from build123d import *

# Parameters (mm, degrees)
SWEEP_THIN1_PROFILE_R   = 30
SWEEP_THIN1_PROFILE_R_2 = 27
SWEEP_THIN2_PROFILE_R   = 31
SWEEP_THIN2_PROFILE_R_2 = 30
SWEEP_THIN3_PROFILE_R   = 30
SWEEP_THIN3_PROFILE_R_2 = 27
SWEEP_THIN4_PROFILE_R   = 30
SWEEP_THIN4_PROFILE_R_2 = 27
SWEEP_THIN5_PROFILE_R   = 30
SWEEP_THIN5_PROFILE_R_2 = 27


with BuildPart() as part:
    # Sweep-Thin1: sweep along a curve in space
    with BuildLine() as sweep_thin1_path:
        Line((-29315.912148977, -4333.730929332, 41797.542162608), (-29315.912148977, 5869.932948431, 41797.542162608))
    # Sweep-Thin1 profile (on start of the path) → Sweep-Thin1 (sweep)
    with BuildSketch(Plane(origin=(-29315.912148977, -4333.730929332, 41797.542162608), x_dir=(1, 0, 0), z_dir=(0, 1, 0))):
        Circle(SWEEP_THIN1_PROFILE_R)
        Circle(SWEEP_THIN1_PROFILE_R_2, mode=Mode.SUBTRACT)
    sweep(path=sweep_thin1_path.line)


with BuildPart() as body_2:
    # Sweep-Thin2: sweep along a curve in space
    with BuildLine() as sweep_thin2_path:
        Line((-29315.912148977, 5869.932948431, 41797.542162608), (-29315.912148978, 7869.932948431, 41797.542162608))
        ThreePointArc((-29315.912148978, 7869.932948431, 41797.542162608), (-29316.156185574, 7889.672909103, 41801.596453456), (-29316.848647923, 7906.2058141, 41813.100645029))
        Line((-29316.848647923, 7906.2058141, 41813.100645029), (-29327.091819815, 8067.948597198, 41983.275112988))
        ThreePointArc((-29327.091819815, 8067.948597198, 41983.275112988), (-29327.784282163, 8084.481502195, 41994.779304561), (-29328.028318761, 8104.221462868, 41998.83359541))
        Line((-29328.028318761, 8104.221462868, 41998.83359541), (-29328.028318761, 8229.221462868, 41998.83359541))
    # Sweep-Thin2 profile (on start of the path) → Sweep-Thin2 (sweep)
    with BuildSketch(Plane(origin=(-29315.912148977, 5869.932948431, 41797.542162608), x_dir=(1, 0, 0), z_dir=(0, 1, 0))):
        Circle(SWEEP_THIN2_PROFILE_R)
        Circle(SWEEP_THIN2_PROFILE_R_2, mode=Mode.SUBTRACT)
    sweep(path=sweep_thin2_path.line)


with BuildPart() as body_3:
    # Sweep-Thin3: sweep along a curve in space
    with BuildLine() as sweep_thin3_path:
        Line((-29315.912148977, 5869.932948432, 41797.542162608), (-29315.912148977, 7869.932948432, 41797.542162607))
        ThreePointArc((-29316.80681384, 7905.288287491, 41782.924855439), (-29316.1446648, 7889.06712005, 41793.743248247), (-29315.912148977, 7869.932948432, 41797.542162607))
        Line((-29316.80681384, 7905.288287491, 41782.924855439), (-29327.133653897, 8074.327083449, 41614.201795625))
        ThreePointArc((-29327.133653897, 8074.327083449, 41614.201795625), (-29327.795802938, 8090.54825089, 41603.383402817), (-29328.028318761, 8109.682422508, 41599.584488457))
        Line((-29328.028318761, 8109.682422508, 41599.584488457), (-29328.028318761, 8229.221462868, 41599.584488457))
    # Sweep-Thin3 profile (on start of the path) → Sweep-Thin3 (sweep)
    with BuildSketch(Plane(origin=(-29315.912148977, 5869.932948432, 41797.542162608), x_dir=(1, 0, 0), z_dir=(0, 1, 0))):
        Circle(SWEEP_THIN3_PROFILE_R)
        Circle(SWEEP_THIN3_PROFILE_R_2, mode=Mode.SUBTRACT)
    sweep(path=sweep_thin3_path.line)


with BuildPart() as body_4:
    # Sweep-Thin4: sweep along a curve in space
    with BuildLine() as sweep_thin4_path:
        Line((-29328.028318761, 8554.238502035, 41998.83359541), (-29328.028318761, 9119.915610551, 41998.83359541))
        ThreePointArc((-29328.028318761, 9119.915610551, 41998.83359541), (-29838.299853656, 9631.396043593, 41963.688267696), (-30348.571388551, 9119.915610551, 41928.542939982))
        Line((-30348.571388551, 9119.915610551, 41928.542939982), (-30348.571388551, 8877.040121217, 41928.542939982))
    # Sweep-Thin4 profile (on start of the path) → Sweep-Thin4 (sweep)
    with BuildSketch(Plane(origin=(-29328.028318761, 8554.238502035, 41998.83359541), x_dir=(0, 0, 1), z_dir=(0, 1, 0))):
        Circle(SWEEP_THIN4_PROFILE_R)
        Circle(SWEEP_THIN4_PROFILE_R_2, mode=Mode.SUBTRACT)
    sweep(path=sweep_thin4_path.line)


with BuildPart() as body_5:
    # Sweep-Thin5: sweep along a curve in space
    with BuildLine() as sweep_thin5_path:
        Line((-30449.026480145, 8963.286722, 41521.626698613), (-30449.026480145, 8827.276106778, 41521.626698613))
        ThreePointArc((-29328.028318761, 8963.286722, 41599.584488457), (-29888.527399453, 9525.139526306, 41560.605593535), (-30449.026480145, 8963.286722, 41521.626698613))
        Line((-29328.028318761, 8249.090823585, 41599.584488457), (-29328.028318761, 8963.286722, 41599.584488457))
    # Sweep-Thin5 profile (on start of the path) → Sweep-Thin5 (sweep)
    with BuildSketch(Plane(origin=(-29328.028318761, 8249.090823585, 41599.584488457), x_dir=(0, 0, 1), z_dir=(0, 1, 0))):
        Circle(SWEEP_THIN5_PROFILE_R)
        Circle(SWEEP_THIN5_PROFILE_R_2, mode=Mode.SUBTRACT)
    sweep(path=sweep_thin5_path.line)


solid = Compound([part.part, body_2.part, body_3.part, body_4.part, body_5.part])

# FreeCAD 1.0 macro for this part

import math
import FreeCAD as App
import Part
import Sketcher

V = App.Vector
Q = App.Units.Quantity

doc = App.newDocument("Part")
body = doc.addObject("PartDesign::Body", "Body")

# Sketch on XZ plane
sketch1 = doc.addObject("Sketcher::SketchObject", "Sketch")
body.addObject(sketch1)
sketch1.AttachmentSupport = (doc.XZ_Plane, [""])
sketch1.MapMode = "FlatFace"
sketch1.AttachmentOffset = App.Placement(V(0, 0, 4333.730929), App.Rotation())
sketch1.addGeometry([
    Part.Circle(V(-29316, 41798, 0), V(0, 0, 1), 30),
    Part.Circle(V(-29316, 41798, 0), V(0, 0, 1), 27),
], False)
sketch1.addConstraint([
    Sketcher.Constraint("Coincident", 1, 3, 0, 3),
    Sketcher.Constraint("Diameter", 0, Q("60 mm")),
    Sketcher.Constraint("Diameter", 1, Q("54 mm")),
    Sketcher.Constraint("DistanceX", 0, 3, -1, 1, Q("29315.912149 mm")),
    Sketcher.Constraint("DistanceY", -1, 1, 0, 3, Q("41797.542163 mm")),
])

# Sketch on XY plane
sketch2 = doc.addObject("Sketcher::SketchObject", "Sketch001")
body.addObject(sketch2)
sketch2.AttachmentSupport = (doc.XY_Plane, [""])
sketch2.MapMode = "FlatFace"
sketch2.AttachmentOffset = App.Placement(V(0, 0, 41797.542163), App.Rotation())
sketch2.addGeometry(Part.LineSegment(V(-29316, -4334, 0), V(-29316, 5870, 0)), False)
sketch2.addConstraint([
    Sketcher.Constraint("Vertical", 0),
    Sketcher.Constraint("DistanceY", 0, 1, 0, 2, Q("10203.663878 mm")),
    Sketcher.Constraint("DistanceX", 0, 1, -1, 1, Q("29315.912149 mm")),
    Sketcher.Constraint("DistanceY", 0, 1, -1, 1, Q("4333.730929 mm")),
])
doc.recompute()

additivepipe = doc.addObject("PartDesign::AdditivePipe", "AdditivePipe")
body.addObject(additivepipe)
additivepipe.Profile = sketch1
additivepipe.Spine = (sketch2, ["Edge1"])
body2 = doc.addObject("PartDesign::Body", "Body001")

# Sketch on XZ plane
sketch3 = doc.addObject("Sketcher::SketchObject", "Sketch002")
body2.addObject(sketch3)
sketch3.AttachmentSupport = (doc.getObject("XZ_Plane001"), [""])
sketch3.MapMode = "FlatFace"
sketch3.AttachmentOffset = App.Placement(V(0, 0, -5869.932948), App.Rotation())
sketch3.addGeometry([
    Part.Circle(V(-29316, 41798, 0), V(0, 0, 1), 31),
    Part.Circle(V(-29316, 41798, 0), V(0, 0, 1), 30),
], False)
sketch3.addConstraint([
    Sketcher.Constraint("Coincident", 1, 3, 0, 3),
    Sketcher.Constraint("Diameter", 0, Q("62 mm")),
    Sketcher.Constraint("Diameter", 1, Q("60 mm")),
    Sketcher.Constraint("DistanceX", 0, 3, -1, 1, Q("29315.912149 mm")),
    Sketcher.Constraint("DistanceY", -1, 1, 0, 3, Q("41797.542163 mm")),
])

# Sketch on an angled plane
sketch4 = doc.addObject("Sketcher::SketchObject", "Sketch003")
body2.addObject(sketch4)
sketch4.Placement = App.Placement(V(-26703.278442, 0, -1607.328493), App.Rotation(V(0.060083432, 0, -0.998193359), V(0, 1.000000001, 0), V(0.998193359, 0, 0.060083432), "ZXY"))
sketch4.addGeometry([
    Part.LineSegment(V(-43483, 5870, 0), V(-43483, 7870, 0)),  # 0
    Part.ArcOfCircle(Part.Circle(V(-43533, 7870, 0), V(0, 0, 1), 50), math.radians(0), math.radians(47)),  # 1
    Part.LineSegment(V(-43499, 7906, 0), V(-43669, 8068, 0)),  # 2
    Part.ArcOfCircle(Part.Circle(V(-43635, 8104, 0), V(0, 0, 1), 50), math.radians(-180), math.radians(-133)),  # 3
    Part.LineSegment(V(-43685, 8104, 0), V(-43685, 8229, 0)),  # 4
], False)
sketch4.addConstraint([
    Sketcher.Constraint("Tangent", 0, 2, 1, 1),
    Sketcher.Constraint("Tangent", 1, 2, 2, 1),
    Sketcher.Constraint("Tangent", 2, 2, 3, 2),
    Sketcher.Constraint("Tangent", 3, 1, 4, 1),
    Sketcher.Constraint("Vertical", 0),
    Sketcher.Constraint("Vertical", 4),
    Sketcher.Constraint("Equal", 1, 3),
    Sketcher.Constraint("Radius", 1, Q("50 mm")),
    Sketcher.Constraint("DistanceY", 4, 1, 4, 2, Q("125 mm")),
    Sketcher.Constraint("Distance", 2, Q("235 mm")),
    Sketcher.Constraint("DistanceY", 0, 1, 0, 2, Q("2000.000003 mm")),
    Sketcher.Constraint("DistanceY", -1, 1, 1, 3, Q("7869.93296 mm")),
    Sketcher.Constraint("DistanceY", -1, 1, 2, 2, Q("8067.948609 mm")),
    Sketcher.Constraint("DistanceX", 1, 3, -1, 1, Q("43533.429653 mm")),
])
doc.recompute()

additivepipe2 = doc.addObject("PartDesign::AdditivePipe", "AdditivePipe001")
body2.addObject(additivepipe2)
additivepipe2.Profile = sketch3
additivepipe2.Spine = (sketch4, ["Edge1", "Edge2", "Edge3", "Edge4", "Edge5"])
body3 = doc.addObject("PartDesign::Body", "Body002")

# Sketch on XZ plane
sketch5 = doc.addObject("Sketcher::SketchObject", "Sketch004")
body3.addObject(sketch5)
sketch5.AttachmentSupport = (doc.getObject("XZ_Plane002"), [""])
sketch5.MapMode = "FlatFace"
sketch5.AttachmentOffset = App.Placement(V(0, 0, -5869.932948), App.Rotation())
sketch5.addGeometry([
    Part.Circle(V(-29316, 41798, 0), V(0, 0, 1), 30),
    Part.Circle(V(-29316, 41798, 0), V(0, 0, 1), 27),
], False)
sketch5.addConstraint([
    Sketcher.Constraint("Coincident", 1, 3, 0, 3),
    Sketcher.Constraint("Diameter", 0, Q("60 mm")),
    Sketcher.Constraint("Diameter", 1, Q("54 mm")),
    Sketcher.Constraint("DistanceX", 0, 3, -1, 1, Q("29315.912149 mm")),
    Sketcher.Constraint("DistanceY", -1, 1, 0, 3, Q("41797.542163 mm")),
])

# Sketch on an angled plane
sketch6 = doc.addObject("Sketcher::SketchObject", "Sketch005")
body3.addObject(sketch6)
sketch6.Placement = App.Placement(V(-31755.206682, 0, 1943.604749), App.Rotation(V(0.061091538, 0, 0.998132168), V(0, 1.000000001, 0), V(-0.998132168, 0, 0.061091538), "ZXY"))
sketch6.addGeometry([
    Part.LineSegment(V(39929, 5870, 0), V(39929, 7870, 0)),  # 0
    Part.ArcOfCircle(Part.Circle(V(39879, 7870, 0), V(0, 0, 1), 50), math.radians(0), math.radians(45)),  # 1
    Part.LineSegment(V(39914, 7905, 0), V(39745, 8074, 0)),  # 2
    Part.ArcOfCircle(Part.Circle(V(39780, 8110, 0), V(0, 0, 1), 50), math.radians(180), math.radians(225)),  # 3
    Part.LineSegment(V(39730, 8110, 0), V(39730, 8229, 0)),  # 4
], False)
sketch6.addConstraint([
    Sketcher.Constraint("Tangent", 0, 2, 1, 1),
    Sketcher.Constraint("Tangent", 1, 2, 2, 1),
    Sketcher.Constraint("Tangent", 2, 2, 3, 2),
    Sketcher.Constraint("Tangent", 3, 1, 4, 1),
    Sketcher.Constraint("Vertical", 0),
    Sketcher.Constraint("Vertical", 4),
    Sketcher.Constraint("Equal", 1, 3),
    Sketcher.Constraint("Radius", 1, Q("50 mm")),
    Sketcher.Constraint("Angle", 2, Q("135 deg")),
    Sketcher.Constraint("DistanceY", 4, 1, 4, 2, Q("119.539041 mm")),
    Sketcher.Constraint("DistanceY", -1, 1, 1, 2, Q("7905.2883 mm")),
    Sketcher.Constraint("Distance", 2, Q("239.056958 mm")),
    Sketcher.Constraint("DistanceY", 0, 1, 0, 2, Q("2000.000003 mm")),
    Sketcher.Constraint("DistanceX", -1, 1, 1, 3, Q("39878.517224 mm")),
])
doc.recompute()

additivepipe3 = doc.addObject("PartDesign::AdditivePipe", "AdditivePipe002")
body3.addObject(additivepipe3)
additivepipe3.Profile = sketch5
additivepipe3.Spine = (sketch6, ["Edge1", "Edge2", "Edge3", "Edge4", "Edge5"])
body4 = doc.addObject("PartDesign::Body", "Body003")

# Sketch on XZ plane
sketch7 = doc.addObject("Sketcher::SketchObject", "Sketch006")
body4.addObject(sketch7)
sketch7.AttachmentSupport = (doc.getObject("XZ_Plane003"), [""])
sketch7.MapMode = "FlatFace"
sketch7.AttachmentOffset = App.Placement(V(0, 0, -8554.238502), App.Rotation())
sketch7.addGeometry([
    Part.Circle(V(-29328, 41999, 0), V(0, 0, 1), 30),
    Part.Circle(V(-29328, 41999, 0), V(0, 0, 1), 27),
], False)
sketch7.addConstraint([
    Sketcher.Constraint("Coincident", 1, 3, 0, 3),
    Sketcher.Constraint("Diameter", 0, Q("60 mm")),
    Sketcher.Constraint("Diameter", 1, Q("54 mm")),
    Sketcher.Constraint("DistanceX", 0, 3, -1, 1, Q("29328.028319 mm")),
    Sketcher.Constraint("DistanceY", -1, 1, 0, 3, Q("41998.833595 mm")),
])

# Sketch on an angled plane
sketch8 = doc.addObject("Sketcher::SketchObject", "Sketch007")
body4.addObject(sketch8)
sketch8.Placement = App.Placement(V(-3017.514172, 0, 43810.989632), App.Rotation(V(0.997636472, 0, 0.068712947), V(0, 0.999999999, 0), V(-0.068712947, 0, 0.997636472), "ZXY"))
sketch8.addGeometry([
    Part.LineSegment(V(-26373, 8554, 0), V(-26373, 9120, 0)),
    Part.ArcOfCircle(Part.Circle(V(-26884, 9120, 0), V(0, 0, 1), 511), math.radians(0), math.radians(180)),
    Part.LineSegment(V(-27396, 9120, 0), V(-27396, 8877, 0)),
], False)
sketch8.addConstraint([
    Sketcher.Constraint("Tangent", 0, 2, 1, 1),
    Sketcher.Constraint("Tangent", 1, 2, 2, 1),
    Sketcher.Constraint("Vertical", 0),
    Sketcher.Constraint("Vertical", 2),
    Sketcher.Constraint("Radius", 1, Q("511.480433 mm")),
    Sketcher.Constraint("DistanceY", 2, 2, 2, 1, Q("242.875489 mm")),
    Sketcher.Constraint("DistanceY", -1, 1, 1, 3, Q("9119.915599 mm")),
    Sketcher.Constraint("DistanceY", 0, 1, 0, 2, Q("565.677108 mm")),
    Sketcher.Constraint("DistanceX", 1, 2, -1, 1, Q("27395.807949 mm")),
])
doc.recompute()

additivepipe4 = doc.addObject("PartDesign::AdditivePipe", "AdditivePipe003")
body4.addObject(additivepipe4)
additivepipe4.Profile = sketch7
additivepipe4.Spine = (sketch8, ["Edge1", "Edge2", "Edge3"])
body5 = doc.addObject("PartDesign::Body", "Body004")

# Sketch on XZ plane
sketch9 = doc.addObject("Sketcher::SketchObject", "Sketch008")
body5.addObject(sketch9)
sketch9.AttachmentSupport = (doc.getObject("XZ_Plane004"), [""])
sketch9.MapMode = "FlatFace"
sketch9.AttachmentOffset = App.Placement(V(0, 0, -8249.090824), App.Rotation())
sketch9.addGeometry([
    Part.Circle(V(-29328, 41600, 0), V(0, 0, 1), 30),
    Part.Circle(V(-29328, 41600, 0), V(0, 0, 1), 27),
], False)
sketch9.addConstraint([
    Sketcher.Constraint("Coincident", 1, 3, 0, 3),
    Sketcher.Constraint("Diameter", 0, Q("60 mm")),
    Sketcher.Constraint("Diameter", 1, Q("54 mm")),
    Sketcher.Constraint("DistanceX", 0, 3, -1, 1, Q("29328.028319 mm")),
    Sketcher.Constraint("DistanceY", -1, 1, 0, 3, Q("41599.584488 mm")),
])

# Sketch on an angled plane
sketch10 = doc.addObject("Sketcher::SketchObject", "Sketch009")
body5.addObject(sketch10)
sketch10.Placement = App.Placement(V(-3020.199254, 0, 43429.114884), App.Rotation(V(-0.997590608, 0, -0.069375635), V(0, 1, 0), V(0.069375635, 0, -0.997590608), "ZXY"))
sketch10.addGeometry([
    Part.LineSegment(V(26371, 8249, 0), V(26371, 8963, 0)),
    Part.ArcOfCircle(Part.Circle(V(26933, 8963, 0), V(0, 0, 1), 562), math.radians(0), math.radians(180)),
    Part.LineSegment(V(27495, 8963, 0), V(27495, 8827, 0)),
], False)
sketch10.addConstraint([
    Sketcher.Constraint("Tangent", 0, 2, 1, 2),
    Sketcher.Constraint("Tangent", 1, 1, 2, 1),
    Sketcher.Constraint("Vertical", 0),
    Sketcher.Constraint("Vertical", 2),
    Sketcher.Constraint("DistanceY", 0, 1, 0, 2, Q("714.195898 mm")),
    Sketcher.Constraint("Radius", 1, Q("561.852804 mm")),
    Sketcher.Constraint("DistanceY", 2, 2, 2, 1, Q("136.010615 mm")),
    Sketcher.Constraint("DistanceY", -1, 1, 1, 3, Q("8963.28672 mm")),
    Sketcher.Constraint("DistanceX", -1, 1, 1, 1, Q("27495.073632 mm")),
])
doc.recompute()

additivepipe5 = doc.addObject("PartDesign::AdditivePipe", "AdditivePipe004")
body5.addObject(additivepipe5)
additivepipe5.Profile = sketch9
additivepipe5.Spine = (sketch10, ["Edge1", "Edge2", "Edge3"])

doc.recompute()
